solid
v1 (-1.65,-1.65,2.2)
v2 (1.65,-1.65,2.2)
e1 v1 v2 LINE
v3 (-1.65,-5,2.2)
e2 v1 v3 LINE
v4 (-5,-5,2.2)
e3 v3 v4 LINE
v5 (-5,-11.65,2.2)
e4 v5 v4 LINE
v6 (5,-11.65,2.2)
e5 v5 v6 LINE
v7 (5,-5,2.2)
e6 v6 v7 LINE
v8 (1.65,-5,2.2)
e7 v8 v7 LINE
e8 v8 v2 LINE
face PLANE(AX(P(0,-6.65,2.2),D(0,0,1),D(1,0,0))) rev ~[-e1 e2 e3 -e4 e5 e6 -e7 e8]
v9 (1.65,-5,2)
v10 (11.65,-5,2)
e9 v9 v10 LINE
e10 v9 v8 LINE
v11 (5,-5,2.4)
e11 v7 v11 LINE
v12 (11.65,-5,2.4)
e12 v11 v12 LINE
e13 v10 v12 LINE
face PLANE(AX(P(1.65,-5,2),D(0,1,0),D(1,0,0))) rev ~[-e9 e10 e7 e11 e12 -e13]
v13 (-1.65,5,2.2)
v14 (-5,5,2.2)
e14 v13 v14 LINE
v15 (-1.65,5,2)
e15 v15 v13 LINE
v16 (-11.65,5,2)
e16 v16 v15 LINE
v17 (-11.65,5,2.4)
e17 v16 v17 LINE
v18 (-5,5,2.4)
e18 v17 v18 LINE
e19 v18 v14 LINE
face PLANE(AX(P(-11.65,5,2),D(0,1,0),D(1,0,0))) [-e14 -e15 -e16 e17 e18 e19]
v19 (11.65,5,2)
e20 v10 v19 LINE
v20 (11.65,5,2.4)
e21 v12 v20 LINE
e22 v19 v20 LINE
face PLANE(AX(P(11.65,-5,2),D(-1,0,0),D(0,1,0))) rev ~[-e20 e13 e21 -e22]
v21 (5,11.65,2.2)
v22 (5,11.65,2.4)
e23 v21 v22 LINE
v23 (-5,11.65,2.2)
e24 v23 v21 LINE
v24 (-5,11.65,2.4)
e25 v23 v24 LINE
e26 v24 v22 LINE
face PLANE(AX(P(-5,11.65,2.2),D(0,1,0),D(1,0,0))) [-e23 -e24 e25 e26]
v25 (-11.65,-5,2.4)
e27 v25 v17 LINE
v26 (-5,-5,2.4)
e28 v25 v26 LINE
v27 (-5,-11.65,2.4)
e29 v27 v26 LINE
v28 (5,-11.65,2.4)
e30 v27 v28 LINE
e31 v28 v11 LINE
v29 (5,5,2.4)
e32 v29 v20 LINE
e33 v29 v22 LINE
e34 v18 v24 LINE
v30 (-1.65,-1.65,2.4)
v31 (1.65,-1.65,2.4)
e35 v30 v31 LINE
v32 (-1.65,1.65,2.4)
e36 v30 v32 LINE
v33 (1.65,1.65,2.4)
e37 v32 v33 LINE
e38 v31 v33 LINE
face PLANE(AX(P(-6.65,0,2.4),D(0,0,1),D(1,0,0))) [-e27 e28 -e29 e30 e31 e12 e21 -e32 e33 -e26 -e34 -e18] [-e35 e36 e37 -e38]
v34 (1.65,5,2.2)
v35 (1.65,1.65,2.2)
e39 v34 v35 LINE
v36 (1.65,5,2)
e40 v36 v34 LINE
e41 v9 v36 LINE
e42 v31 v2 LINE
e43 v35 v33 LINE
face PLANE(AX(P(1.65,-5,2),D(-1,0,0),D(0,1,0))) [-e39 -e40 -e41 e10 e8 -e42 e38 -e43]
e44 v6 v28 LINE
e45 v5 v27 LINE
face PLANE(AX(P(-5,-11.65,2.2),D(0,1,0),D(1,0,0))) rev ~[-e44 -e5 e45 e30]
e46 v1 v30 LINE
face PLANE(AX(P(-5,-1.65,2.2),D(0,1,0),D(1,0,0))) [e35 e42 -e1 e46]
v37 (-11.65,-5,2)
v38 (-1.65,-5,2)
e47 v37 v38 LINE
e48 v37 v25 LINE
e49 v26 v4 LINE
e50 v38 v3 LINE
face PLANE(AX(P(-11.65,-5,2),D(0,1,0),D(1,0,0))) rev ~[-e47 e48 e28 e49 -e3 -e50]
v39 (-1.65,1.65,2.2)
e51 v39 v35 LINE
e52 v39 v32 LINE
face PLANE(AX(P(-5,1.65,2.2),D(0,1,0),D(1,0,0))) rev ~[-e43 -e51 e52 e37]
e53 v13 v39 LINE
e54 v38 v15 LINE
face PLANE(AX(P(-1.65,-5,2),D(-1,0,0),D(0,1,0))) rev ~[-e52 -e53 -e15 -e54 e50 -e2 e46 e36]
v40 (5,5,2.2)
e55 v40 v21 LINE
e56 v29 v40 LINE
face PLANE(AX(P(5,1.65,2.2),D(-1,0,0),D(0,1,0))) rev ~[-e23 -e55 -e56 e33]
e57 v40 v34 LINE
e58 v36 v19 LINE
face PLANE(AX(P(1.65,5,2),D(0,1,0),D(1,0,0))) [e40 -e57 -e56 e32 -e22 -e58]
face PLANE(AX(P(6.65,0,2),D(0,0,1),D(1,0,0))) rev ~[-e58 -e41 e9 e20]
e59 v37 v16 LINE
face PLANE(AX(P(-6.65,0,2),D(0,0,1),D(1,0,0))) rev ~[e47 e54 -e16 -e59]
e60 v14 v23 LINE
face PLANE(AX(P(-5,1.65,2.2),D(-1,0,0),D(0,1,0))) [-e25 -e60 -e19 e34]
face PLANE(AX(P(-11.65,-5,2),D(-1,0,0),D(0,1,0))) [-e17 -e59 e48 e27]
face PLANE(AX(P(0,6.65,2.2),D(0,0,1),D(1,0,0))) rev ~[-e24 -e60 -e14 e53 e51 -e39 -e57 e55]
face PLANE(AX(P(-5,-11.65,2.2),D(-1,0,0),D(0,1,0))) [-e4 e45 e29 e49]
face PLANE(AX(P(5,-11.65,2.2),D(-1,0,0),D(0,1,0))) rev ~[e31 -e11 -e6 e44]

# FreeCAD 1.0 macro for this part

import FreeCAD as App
import Part
import Sketcher
from FreeCAD import Vector
Q = App.Units.Quantity

doc = App.newDocument("Part")
body = doc.addObject("PartDesign::Body", "Body")

# Sketch on XY plane
sketch1 = doc.addObject("Sketcher::SketchObject", "Sketch")
body.addObject(sketch1)
sketch1.AttachmentSupport = (doc.XY_Plane, [""])
sketch1.MapMode = "FlatFace"
sketch1.addGeometry(Part.LineSegment(Vector(2, 5, 0), Vector(2, -5, 0)), False)
sketch1.addGeometry(Part.LineSegment(Vector(2, -5, 0), Vector(12, -5, 0)), False)
sketch1.addGeometry(Part.LineSegment(Vector(12, -5, 0), Vector(12, 5, 0)), False)
sketch1.addGeometry(Part.LineSegment(Vector(12, 5, 0), Vector(2, 5, 0)), False)
sketch1.addConstraint(Sketcher.Constraint("Coincident", 0, 2, 1, 1))
sketch1.addConstraint(Sketcher.Constraint("Coincident", 1, 2, 2, 1))
sketch1.addConstraint(Sketcher.Constraint("Coincident", 2, 2, 3, 1))
sketch1.addConstraint(Sketcher.Constraint("Coincident", 3, 2, 0, 1))
sketch1.addConstraint(Sketcher.Constraint("Vertical", 0))
sketch1.addConstraint(Sketcher.Constraint("Horizontal", 1))
sketch1.addConstraint(Sketcher.Constraint("Vertical", 2))
sketch1.addConstraint(Sketcher.Constraint("Horizontal", 3))
sketch1.addConstraint(Sketcher.Constraint("Equal", 3, 0))
sketch1.addConstraint(Sketcher.Constraint("DistanceX", 1, 1, 1, 2, Q("10 mm")))
sketch1.addConstraint(Sketcher.Constraint("DistanceY", 0, 2, -1, 1, Q("5 mm")))
sketch1.addConstraint(Sketcher.Constraint("DistanceX", -1, 1, 0, 2, Q("1.65 mm")))
pad1 = doc.addObject("PartDesign::Pad", "Pad")
body.addObject(pad1)
pad1.Profile = sketch1
pad1.Length = 0.4
body2 = doc.addObject("PartDesign::Body", "Body001")

# Sketch on XY plane
sketch2 = doc.addObject("Sketcher::SketchObject", "Sketch001")
body2.addObject(sketch2)
sketch2.AttachmentSupport = (doc.getObject("XY_Plane001"), [""])
sketch2.MapMode = "FlatFace"
sketch2.AttachmentOffset = App.Placement(Vector(0, 0, 0.2), App.Rotation())
sketch2.addGeometry(Part.LineSegment(Vector(-5, -2, 0), Vector(-5, -12, 0)), False)
sketch2.addGeometry(Part.LineSegment(Vector(-5, -12, 0), Vector(5, -12, 0)), False)
sketch2.addGeometry(Part.LineSegment(Vector(5, -12, 0), Vector(5, -2, 0)), False)
sketch2.addGeometry(Part.LineSegment(Vector(5, -2, 0), Vector(-5, -2, 0)), False)
sketch2.addConstraint(Sketcher.Constraint("Coincident", 0, 2, 1, 1))
sketch2.addConstraint(Sketcher.Constraint("Coincident", 1, 2, 2, 1))
sketch2.addConstraint(Sketcher.Constraint("Coincident", 2, 2, 3, 1))
sketch2.addConstraint(Sketcher.Constraint("Coincident", 3, 2, 0, 1))
sketch2.addConstraint(Sketcher.Constraint("Vertical", 0))
sketch2.addConstraint(Sketcher.Constraint("Horizontal", 1))
sketch2.addConstraint(Sketcher.Constraint("Vertical", 2))
sketch2.addConstraint(Sketcher.Constraint("Horizontal", 3))
sketch2.addConstraint(Sketcher.Constraint("Equal", 3, 0))
sketch2.addConstraint(Sketcher.Constraint("DistanceX", 1, 1, 1, 2, Q("10 mm")))
sketch2.addConstraint(Sketcher.Constraint("DistanceX", 0, 2, -1, 1, Q("5 mm")))
sketch2.addConstraint(Sketcher.Constraint("DistanceY", 0, 2, -1, 1, Q("11.65 mm")))
pad2 = doc.addObject("PartDesign::Pad", "Pad001")
body2.addObject(pad2)
pad2.Profile = sketch2
pad2.Length = 0.2
body3 = doc.addObject("PartDesign::Body", "Body002")

# Sketch on XY plane
sketch3 = doc.addObject("Sketcher::SketchObject", "Sketch002")
body3.addObject(sketch3)
sketch3.AttachmentSupport = (doc.getObject("XY_Plane002"), [""])
sketch3.MapMode = "FlatFace"
sketch3.addGeometry(Part.LineSegment(Vector(-12, 5, 0), Vector(-12, -5, 0)), False)
sketch3.addGeometry(Part.LineSegment(Vector(-12, -5, 0), Vector(-2, -5, 0)), False)
sketch3.addGeometry(Part.LineSegment(Vector(-2, -5, 0), Vector(-2, 5, 0)), False)
sketch3.addGeometry(Part.LineSegment(Vector(-2, 5, 0), Vector(-12, 5, 0)), False)
sketch3.addConstraint(Sketcher.Constraint("Coincident", 0, 2, 1, 1))
sketch3.addConstraint(Sketcher.Constraint("Coincident", 1, 2, 2, 1))
sketch3.addConstraint(Sketcher.Constraint("Coincident", 2, 2, 3, 1))
sketch3.addConstraint(Sketcher.Constraint("Coincident", 3, 2, 0, 1))
sketch3.addConstraint(Sketcher.Constraint("Vertical", 0))
sketch3.addConstraint(Sketcher.Constraint("Horizontal", 1))
sketch3.addConstraint(Sketcher.Constraint("Vertical", 2))
sketch3.addConstraint(Sketcher.Constraint("Horizontal", 3))
sketch3.addConstraint(Sketcher.Constraint("Equal", 3, 0))
sketch3.addConstraint(Sketcher.Constraint("DistanceX", 1, 1, 1, 2, Q("10 mm")))
sketch3.addConstraint(Sketcher.Constraint("DistanceY", 0, 2, -1, 1, Q("5 mm")))
sketch3.addConstraint(Sketcher.Constraint("DistanceX", 0, 2, -1, 1, Q("11.65 mm")))
pad3 = doc.addObject("PartDesign::Pad", "Pad002")
body3.addObject(pad3)
pad3.Profile = sketch3
pad3.Length = 0.4
body4 = doc.addObject("PartDesign::Body", "Body003")

# Sketch on XY plane
sketch4 = doc.addObject("Sketcher::SketchObject", "Sketch003")
body4.addObject(sketch4)
sketch4.AttachmentSupport = (doc.getObject("XY_Plane003"), [""])
sketch4.MapMode = "FlatFace"
sketch4.AttachmentOffset = App.Placement(Vector(0, 0, 0.2), App.Rotation())
sketch4.addGeometry(Part.LineSegment(Vector(-5, 12, 0), Vector(-5, 2, 0)), False)
sketch4.addGeometry(Part.LineSegment(Vector(-5, 2, 0), Vector(5, 2, 0)), False)
sketch4.addGeometry(Part.LineSegment(Vector(5, 2, 0), Vector(5, 12, 0)), False)
sketch4.addGeometry(Part.LineSegment(Vector(5, 12, 0), Vector(-5, 12, 0)), False)
sketch4.addConstraint(Sketcher.Constraint("Coincident", 0, 2, 1, 1))
sketch4.addConstraint(Sketcher.Constraint("Coincident", 1, 2, 2, 1))
sketch4.addConstraint(Sketcher.Constraint("Coincident", 2, 2, 3, 1))
sketch4.addConstraint(Sketcher.Constraint("Coincident", 3, 2, 0, 1))
sketch4.addConstraint(Sketcher.Constraint("Vertical", 0))
sketch4.addConstraint(Sketcher.Constraint("Horizontal", 1))
sketch4.addConstraint(Sketcher.Constraint("Vertical", 2))
sketch4.addConstraint(Sketcher.Constraint("Horizontal", 3))
sketch4.addConstraint(Sketcher.Constraint("Equal", 3, 0))
sketch4.addConstraint(Sketcher.Constraint("DistanceX", 1, 1, 1, 2, Q("10 mm")))
sketch4.addConstraint(Sketcher.Constraint("DistanceX", 0, 2, -1, 1, Q("5 mm")))
sketch4.addConstraint(Sketcher.Constraint("DistanceY", -1, 1, 0, 2, Q("1.65 mm")))
pad4 = doc.addObject("PartDesign::Pad", "Pad003")
body4.addObject(pad4)
pad4.Profile = sketch4
pad4.Length = 0.2
doc.recompute()

boolean = doc.addObject("PartDesign::Boolean", "Boolean")
body4.addObject(boolean)
boolean.Type = "Fuse"
boolean.addObjects([body])
doc.recompute()

boolean2 = doc.addObject("PartDesign::Boolean", "Boolean001")
body4.addObject(boolean2)
boolean2.Type = "Fuse"
boolean2.addObjects([body2])
doc.recompute()

boolean3 = doc.addObject("PartDesign::Boolean", "Boolean002")
body4.addObject(boolean3)
boolean3.Type = "Fuse"
boolean3.addObjects([body3])
body5 = doc.addObject("PartDesign::Body", "Body004")
doc.recompute()

body4.Placement = App.Placement(Vector(0, 0, 2), App.Rotation(Vector(0, 0, 1), 0))
boolean4 = doc.addObject("PartDesign::Boolean", "Boolean003")
body5.addObject(boolean4)
boolean4.Type = "Fuse"
boolean4.addObjects([body4])

doc.recompute()
